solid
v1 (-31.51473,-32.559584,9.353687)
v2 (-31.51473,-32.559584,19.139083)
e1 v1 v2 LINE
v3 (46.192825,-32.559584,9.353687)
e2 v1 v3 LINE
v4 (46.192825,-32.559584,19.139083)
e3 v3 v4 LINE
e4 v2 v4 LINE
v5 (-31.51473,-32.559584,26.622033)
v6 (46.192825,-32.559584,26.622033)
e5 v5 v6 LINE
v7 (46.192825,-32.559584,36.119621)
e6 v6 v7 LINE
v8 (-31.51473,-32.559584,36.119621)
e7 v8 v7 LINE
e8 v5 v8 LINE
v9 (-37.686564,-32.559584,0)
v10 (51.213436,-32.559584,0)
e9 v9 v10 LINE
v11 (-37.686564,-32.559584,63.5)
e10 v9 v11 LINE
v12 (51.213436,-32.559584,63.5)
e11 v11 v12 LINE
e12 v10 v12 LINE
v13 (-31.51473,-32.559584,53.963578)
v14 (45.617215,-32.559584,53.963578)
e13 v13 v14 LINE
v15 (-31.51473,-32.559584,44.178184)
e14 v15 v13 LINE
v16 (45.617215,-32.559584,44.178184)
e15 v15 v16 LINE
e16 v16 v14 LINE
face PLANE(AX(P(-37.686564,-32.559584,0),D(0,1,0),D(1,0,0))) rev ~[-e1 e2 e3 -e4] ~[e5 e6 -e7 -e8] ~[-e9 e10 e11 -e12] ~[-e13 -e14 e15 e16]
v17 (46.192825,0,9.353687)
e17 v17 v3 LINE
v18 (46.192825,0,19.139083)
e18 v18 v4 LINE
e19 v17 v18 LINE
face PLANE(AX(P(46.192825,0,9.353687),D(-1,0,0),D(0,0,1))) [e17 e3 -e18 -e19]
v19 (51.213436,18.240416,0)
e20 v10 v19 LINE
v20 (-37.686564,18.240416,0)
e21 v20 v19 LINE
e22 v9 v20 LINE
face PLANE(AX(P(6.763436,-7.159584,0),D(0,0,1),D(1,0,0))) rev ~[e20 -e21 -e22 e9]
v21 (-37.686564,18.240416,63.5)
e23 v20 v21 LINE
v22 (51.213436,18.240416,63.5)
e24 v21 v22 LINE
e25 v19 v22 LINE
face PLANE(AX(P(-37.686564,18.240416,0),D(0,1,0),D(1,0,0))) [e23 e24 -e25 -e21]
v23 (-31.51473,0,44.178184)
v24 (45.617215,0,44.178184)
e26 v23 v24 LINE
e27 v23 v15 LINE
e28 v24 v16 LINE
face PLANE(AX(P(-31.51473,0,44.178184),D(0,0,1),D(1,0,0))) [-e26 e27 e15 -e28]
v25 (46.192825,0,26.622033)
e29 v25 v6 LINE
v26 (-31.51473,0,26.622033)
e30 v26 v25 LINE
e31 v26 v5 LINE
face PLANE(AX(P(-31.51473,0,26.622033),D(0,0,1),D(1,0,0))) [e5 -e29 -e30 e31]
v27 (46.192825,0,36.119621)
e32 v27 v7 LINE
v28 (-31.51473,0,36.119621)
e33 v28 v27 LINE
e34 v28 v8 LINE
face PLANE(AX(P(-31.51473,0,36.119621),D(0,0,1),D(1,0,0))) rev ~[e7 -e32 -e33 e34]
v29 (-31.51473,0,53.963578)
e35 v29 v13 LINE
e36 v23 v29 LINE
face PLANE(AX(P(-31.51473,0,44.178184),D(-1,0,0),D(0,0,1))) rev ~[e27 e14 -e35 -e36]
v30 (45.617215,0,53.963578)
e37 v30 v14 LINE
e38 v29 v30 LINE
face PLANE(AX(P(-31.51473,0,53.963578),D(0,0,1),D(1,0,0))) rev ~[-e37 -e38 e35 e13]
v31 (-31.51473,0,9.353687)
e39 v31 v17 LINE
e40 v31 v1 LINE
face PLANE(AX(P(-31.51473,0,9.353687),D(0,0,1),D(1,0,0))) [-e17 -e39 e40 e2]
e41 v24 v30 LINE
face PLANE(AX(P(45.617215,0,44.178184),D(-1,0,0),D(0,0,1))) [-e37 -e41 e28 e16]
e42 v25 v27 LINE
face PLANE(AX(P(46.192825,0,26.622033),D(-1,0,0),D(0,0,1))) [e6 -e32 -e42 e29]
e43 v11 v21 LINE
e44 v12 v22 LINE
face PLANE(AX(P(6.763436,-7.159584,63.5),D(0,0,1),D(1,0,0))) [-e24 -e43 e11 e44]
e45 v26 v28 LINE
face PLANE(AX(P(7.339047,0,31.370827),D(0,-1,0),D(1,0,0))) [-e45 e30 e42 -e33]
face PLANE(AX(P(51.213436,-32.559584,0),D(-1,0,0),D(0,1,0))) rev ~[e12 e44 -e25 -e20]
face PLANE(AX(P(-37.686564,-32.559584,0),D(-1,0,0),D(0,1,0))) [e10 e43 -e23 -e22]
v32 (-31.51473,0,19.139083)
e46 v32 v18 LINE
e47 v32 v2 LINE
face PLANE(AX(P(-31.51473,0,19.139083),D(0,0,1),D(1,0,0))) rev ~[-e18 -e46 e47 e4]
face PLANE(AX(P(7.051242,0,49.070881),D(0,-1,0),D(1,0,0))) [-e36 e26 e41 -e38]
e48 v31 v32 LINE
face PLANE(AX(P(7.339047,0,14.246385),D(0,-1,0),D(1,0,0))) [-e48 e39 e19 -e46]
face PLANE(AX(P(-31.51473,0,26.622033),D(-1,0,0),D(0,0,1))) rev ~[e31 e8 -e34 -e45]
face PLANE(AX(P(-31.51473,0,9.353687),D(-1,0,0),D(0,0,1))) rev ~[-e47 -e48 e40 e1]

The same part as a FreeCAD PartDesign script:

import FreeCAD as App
import Part
import Sketcher

V = App.Vector
Q = App.Units.Quantity

doc = App.newDocument("Part")
body = doc.addObject("PartDesign::Body", "Body")

sketch1 = doc.addObject("Sketcher::SketchObject", "Sketch")
body.addObject(sketch1)
sketch1.AttachmentSupport = (doc.XY_Plane, [""])
sketch1.MapMode = "FlatFace"
sketch1.addGeometry([
    Part.LineSegment(V(-38, 18, 0), V(-38, -33, 0)),
    Part.LineSegment(V(-38, -33, 0), V(51, -33, 0)),
    Part.LineSegment(V(51, -33, 0), V(51, 18, 0)),
    Part.LineSegment(V(51, 18, 0), V(-38, 18, 0)),
], False)
sketch1.addConstraint([
    Sketcher.Constraint("Coincident", 0, 2, 1, 1),
    Sketcher.Constraint("Coincident", 1, 2, 2, 1),
    Sketcher.Constraint("Coincident", 2, 2, 3, 1),
    Sketcher.Constraint("Coincident", 3, 2, 0, 1),
    Sketcher.Constraint("Vertical", 0),
    Sketcher.Constraint("Horizontal", 1),
    Sketcher.Constraint("Vertical", 2),
    Sketcher.Constraint("Horizontal", 3),
    Sketcher.Constraint("DistanceY", 0, 2, 0, 1, Q("2 in")),
    Sketcher.Constraint("DistanceX", 1, 1, 1, 2, Q("3.5 in")),
    Sketcher.Constraint("DistanceX", 0, 2, -1, 1, 37.686564),
    Sketcher.Constraint("DistanceY", 0, 2, -1, 1, 32.559584),
])
pad1 = doc.addObject("PartDesign::Pad", "Pad")
body.addObject(pad1)
pad1.Profile = sketch1
pad1.Length = Q("2.5 in")

sketch2 = doc.addObject("Sketcher::SketchObject", "Sketch001")
body.addObject(sketch2)
sketch2.AttachmentSupport = (doc.XZ_Plane, [""])
sketch2.MapMode = "FlatFace"
sketch2.addGeometry([
    Part.LineSegment(V(-32, 54, 0), V(-32, 44, 0)),
    Part.LineSegment(V(-32, 44, 0), V(46, 44, 0)),
    Part.LineSegment(V(46, 44, 0), V(46, 54, 0)),
    Part.LineSegment(V(46, 54, 0), V(-32, 54, 0)),
    Part.LineSegment(V(-32, 36, 0), V(-32, 27, 0)),
    Part.LineSegment(V(-32, 27, 0), V(46, 27, 0)),
    Part.LineSegment(V(46, 27, 0), V(46, 36, 0)),
    Part.LineSegment(V(46, 36, 0), V(-32, 36, 0)),
    Part.LineSegment(V(-32, 19, 0), V(-32, 9, 0)),
    Part.LineSegment(V(-32, 9, 0), V(46, 9, 0)),
    Part.LineSegment(V(46, 9, 0), V(46, 19, 0)),
    Part.LineSegment(V(46, 19, 0), V(-32, 19, 0)),
], False)
sketch2.addConstraint([
    Sketcher.Constraint("Coincident", 0, 2, 1, 1),
    Sketcher.Constraint("Coincident", 1, 2, 2, 1),
    Sketcher.Constraint("Coincident", 2, 2, 3, 1),
    Sketcher.Constraint("Coincident", 3, 2, 0, 1),
    Sketcher.Constraint("Coincident", 4, 2, 5, 1),
    Sketcher.Constraint("Coincident", 5, 2, 6, 1),
    Sketcher.Constraint("Coincident", 6, 2, 7, 1),
    Sketcher.Constraint("Coincident", 7, 2, 4, 1),
    Sketcher.Constraint("Coincident", 8, 2, 9, 1),
    Sketcher.Constraint("Coincident", 9, 2, 10, 1),
    Sketcher.Constraint("Coincident", 10, 2, 11, 1),
    Sketcher.Constraint("Coincident", 11, 2, 8, 1),
    Sketcher.Constraint("Vertical", 0),
    Sketcher.Constraint("Horizontal", 1),
    Sketcher.Constraint("Vertical", 2),
    Sketcher.Constraint("Horizontal", 3),
    Sketcher.Constraint("Vertical", 4),
    Sketcher.Constraint("Horizontal", 5),
    Sketcher.Constraint("Vertical", 6),
    Sketcher.Constraint("Horizontal", 7),
    Sketcher.Constraint("Vertical", 8),
    Sketcher.Constraint("Horizontal", 9),
    Sketcher.Constraint("Vertical", 10),
    Sketcher.Constraint("Horizontal", 11),
    Sketcher.Constraint("Vertical", 3, 2, 4, 2),
    Sketcher.Constraint("Vertical", 7, 2, 8, 2),
    Sketcher.Constraint("Vertical", 6, 2, 9, 2),
    Sketcher.Constraint("Equal", 2, 8),
    Sketcher.Constraint("DistanceY", 4, 2, 4, 1, 9.497588),
    Sketcher.Constraint("DistanceY", 10, 2, 1, 2, 25.039101),
    Sketcher.Constraint("DistanceX", 1, 1, 1, 2, 77.131945),
    Sketcher.Constraint("DistanceX", 5, 1, 5, 2, 77.707555),
    Sketcher.Constraint("DistanceY", 0, 2, 0, 1, 9.785395),
    Sketcher.Constraint("DistanceX", 0, 2, -1, 1, 31.51473),
    Sketcher.Constraint("DistanceY", -1, 1, 2, 2, 53.963578),
    Sketcher.Constraint("DistanceY", -1, 1, 6, 2, 36.119621),
])
pocket1 = doc.addObject("PartDesign::Pocket", "Pocket")
body.addObject(pocket1)
pocket1.Profile = sketch2
pocket1.Length = Q("5 in")
pocket1.Reversed = True

doc.recompute()
